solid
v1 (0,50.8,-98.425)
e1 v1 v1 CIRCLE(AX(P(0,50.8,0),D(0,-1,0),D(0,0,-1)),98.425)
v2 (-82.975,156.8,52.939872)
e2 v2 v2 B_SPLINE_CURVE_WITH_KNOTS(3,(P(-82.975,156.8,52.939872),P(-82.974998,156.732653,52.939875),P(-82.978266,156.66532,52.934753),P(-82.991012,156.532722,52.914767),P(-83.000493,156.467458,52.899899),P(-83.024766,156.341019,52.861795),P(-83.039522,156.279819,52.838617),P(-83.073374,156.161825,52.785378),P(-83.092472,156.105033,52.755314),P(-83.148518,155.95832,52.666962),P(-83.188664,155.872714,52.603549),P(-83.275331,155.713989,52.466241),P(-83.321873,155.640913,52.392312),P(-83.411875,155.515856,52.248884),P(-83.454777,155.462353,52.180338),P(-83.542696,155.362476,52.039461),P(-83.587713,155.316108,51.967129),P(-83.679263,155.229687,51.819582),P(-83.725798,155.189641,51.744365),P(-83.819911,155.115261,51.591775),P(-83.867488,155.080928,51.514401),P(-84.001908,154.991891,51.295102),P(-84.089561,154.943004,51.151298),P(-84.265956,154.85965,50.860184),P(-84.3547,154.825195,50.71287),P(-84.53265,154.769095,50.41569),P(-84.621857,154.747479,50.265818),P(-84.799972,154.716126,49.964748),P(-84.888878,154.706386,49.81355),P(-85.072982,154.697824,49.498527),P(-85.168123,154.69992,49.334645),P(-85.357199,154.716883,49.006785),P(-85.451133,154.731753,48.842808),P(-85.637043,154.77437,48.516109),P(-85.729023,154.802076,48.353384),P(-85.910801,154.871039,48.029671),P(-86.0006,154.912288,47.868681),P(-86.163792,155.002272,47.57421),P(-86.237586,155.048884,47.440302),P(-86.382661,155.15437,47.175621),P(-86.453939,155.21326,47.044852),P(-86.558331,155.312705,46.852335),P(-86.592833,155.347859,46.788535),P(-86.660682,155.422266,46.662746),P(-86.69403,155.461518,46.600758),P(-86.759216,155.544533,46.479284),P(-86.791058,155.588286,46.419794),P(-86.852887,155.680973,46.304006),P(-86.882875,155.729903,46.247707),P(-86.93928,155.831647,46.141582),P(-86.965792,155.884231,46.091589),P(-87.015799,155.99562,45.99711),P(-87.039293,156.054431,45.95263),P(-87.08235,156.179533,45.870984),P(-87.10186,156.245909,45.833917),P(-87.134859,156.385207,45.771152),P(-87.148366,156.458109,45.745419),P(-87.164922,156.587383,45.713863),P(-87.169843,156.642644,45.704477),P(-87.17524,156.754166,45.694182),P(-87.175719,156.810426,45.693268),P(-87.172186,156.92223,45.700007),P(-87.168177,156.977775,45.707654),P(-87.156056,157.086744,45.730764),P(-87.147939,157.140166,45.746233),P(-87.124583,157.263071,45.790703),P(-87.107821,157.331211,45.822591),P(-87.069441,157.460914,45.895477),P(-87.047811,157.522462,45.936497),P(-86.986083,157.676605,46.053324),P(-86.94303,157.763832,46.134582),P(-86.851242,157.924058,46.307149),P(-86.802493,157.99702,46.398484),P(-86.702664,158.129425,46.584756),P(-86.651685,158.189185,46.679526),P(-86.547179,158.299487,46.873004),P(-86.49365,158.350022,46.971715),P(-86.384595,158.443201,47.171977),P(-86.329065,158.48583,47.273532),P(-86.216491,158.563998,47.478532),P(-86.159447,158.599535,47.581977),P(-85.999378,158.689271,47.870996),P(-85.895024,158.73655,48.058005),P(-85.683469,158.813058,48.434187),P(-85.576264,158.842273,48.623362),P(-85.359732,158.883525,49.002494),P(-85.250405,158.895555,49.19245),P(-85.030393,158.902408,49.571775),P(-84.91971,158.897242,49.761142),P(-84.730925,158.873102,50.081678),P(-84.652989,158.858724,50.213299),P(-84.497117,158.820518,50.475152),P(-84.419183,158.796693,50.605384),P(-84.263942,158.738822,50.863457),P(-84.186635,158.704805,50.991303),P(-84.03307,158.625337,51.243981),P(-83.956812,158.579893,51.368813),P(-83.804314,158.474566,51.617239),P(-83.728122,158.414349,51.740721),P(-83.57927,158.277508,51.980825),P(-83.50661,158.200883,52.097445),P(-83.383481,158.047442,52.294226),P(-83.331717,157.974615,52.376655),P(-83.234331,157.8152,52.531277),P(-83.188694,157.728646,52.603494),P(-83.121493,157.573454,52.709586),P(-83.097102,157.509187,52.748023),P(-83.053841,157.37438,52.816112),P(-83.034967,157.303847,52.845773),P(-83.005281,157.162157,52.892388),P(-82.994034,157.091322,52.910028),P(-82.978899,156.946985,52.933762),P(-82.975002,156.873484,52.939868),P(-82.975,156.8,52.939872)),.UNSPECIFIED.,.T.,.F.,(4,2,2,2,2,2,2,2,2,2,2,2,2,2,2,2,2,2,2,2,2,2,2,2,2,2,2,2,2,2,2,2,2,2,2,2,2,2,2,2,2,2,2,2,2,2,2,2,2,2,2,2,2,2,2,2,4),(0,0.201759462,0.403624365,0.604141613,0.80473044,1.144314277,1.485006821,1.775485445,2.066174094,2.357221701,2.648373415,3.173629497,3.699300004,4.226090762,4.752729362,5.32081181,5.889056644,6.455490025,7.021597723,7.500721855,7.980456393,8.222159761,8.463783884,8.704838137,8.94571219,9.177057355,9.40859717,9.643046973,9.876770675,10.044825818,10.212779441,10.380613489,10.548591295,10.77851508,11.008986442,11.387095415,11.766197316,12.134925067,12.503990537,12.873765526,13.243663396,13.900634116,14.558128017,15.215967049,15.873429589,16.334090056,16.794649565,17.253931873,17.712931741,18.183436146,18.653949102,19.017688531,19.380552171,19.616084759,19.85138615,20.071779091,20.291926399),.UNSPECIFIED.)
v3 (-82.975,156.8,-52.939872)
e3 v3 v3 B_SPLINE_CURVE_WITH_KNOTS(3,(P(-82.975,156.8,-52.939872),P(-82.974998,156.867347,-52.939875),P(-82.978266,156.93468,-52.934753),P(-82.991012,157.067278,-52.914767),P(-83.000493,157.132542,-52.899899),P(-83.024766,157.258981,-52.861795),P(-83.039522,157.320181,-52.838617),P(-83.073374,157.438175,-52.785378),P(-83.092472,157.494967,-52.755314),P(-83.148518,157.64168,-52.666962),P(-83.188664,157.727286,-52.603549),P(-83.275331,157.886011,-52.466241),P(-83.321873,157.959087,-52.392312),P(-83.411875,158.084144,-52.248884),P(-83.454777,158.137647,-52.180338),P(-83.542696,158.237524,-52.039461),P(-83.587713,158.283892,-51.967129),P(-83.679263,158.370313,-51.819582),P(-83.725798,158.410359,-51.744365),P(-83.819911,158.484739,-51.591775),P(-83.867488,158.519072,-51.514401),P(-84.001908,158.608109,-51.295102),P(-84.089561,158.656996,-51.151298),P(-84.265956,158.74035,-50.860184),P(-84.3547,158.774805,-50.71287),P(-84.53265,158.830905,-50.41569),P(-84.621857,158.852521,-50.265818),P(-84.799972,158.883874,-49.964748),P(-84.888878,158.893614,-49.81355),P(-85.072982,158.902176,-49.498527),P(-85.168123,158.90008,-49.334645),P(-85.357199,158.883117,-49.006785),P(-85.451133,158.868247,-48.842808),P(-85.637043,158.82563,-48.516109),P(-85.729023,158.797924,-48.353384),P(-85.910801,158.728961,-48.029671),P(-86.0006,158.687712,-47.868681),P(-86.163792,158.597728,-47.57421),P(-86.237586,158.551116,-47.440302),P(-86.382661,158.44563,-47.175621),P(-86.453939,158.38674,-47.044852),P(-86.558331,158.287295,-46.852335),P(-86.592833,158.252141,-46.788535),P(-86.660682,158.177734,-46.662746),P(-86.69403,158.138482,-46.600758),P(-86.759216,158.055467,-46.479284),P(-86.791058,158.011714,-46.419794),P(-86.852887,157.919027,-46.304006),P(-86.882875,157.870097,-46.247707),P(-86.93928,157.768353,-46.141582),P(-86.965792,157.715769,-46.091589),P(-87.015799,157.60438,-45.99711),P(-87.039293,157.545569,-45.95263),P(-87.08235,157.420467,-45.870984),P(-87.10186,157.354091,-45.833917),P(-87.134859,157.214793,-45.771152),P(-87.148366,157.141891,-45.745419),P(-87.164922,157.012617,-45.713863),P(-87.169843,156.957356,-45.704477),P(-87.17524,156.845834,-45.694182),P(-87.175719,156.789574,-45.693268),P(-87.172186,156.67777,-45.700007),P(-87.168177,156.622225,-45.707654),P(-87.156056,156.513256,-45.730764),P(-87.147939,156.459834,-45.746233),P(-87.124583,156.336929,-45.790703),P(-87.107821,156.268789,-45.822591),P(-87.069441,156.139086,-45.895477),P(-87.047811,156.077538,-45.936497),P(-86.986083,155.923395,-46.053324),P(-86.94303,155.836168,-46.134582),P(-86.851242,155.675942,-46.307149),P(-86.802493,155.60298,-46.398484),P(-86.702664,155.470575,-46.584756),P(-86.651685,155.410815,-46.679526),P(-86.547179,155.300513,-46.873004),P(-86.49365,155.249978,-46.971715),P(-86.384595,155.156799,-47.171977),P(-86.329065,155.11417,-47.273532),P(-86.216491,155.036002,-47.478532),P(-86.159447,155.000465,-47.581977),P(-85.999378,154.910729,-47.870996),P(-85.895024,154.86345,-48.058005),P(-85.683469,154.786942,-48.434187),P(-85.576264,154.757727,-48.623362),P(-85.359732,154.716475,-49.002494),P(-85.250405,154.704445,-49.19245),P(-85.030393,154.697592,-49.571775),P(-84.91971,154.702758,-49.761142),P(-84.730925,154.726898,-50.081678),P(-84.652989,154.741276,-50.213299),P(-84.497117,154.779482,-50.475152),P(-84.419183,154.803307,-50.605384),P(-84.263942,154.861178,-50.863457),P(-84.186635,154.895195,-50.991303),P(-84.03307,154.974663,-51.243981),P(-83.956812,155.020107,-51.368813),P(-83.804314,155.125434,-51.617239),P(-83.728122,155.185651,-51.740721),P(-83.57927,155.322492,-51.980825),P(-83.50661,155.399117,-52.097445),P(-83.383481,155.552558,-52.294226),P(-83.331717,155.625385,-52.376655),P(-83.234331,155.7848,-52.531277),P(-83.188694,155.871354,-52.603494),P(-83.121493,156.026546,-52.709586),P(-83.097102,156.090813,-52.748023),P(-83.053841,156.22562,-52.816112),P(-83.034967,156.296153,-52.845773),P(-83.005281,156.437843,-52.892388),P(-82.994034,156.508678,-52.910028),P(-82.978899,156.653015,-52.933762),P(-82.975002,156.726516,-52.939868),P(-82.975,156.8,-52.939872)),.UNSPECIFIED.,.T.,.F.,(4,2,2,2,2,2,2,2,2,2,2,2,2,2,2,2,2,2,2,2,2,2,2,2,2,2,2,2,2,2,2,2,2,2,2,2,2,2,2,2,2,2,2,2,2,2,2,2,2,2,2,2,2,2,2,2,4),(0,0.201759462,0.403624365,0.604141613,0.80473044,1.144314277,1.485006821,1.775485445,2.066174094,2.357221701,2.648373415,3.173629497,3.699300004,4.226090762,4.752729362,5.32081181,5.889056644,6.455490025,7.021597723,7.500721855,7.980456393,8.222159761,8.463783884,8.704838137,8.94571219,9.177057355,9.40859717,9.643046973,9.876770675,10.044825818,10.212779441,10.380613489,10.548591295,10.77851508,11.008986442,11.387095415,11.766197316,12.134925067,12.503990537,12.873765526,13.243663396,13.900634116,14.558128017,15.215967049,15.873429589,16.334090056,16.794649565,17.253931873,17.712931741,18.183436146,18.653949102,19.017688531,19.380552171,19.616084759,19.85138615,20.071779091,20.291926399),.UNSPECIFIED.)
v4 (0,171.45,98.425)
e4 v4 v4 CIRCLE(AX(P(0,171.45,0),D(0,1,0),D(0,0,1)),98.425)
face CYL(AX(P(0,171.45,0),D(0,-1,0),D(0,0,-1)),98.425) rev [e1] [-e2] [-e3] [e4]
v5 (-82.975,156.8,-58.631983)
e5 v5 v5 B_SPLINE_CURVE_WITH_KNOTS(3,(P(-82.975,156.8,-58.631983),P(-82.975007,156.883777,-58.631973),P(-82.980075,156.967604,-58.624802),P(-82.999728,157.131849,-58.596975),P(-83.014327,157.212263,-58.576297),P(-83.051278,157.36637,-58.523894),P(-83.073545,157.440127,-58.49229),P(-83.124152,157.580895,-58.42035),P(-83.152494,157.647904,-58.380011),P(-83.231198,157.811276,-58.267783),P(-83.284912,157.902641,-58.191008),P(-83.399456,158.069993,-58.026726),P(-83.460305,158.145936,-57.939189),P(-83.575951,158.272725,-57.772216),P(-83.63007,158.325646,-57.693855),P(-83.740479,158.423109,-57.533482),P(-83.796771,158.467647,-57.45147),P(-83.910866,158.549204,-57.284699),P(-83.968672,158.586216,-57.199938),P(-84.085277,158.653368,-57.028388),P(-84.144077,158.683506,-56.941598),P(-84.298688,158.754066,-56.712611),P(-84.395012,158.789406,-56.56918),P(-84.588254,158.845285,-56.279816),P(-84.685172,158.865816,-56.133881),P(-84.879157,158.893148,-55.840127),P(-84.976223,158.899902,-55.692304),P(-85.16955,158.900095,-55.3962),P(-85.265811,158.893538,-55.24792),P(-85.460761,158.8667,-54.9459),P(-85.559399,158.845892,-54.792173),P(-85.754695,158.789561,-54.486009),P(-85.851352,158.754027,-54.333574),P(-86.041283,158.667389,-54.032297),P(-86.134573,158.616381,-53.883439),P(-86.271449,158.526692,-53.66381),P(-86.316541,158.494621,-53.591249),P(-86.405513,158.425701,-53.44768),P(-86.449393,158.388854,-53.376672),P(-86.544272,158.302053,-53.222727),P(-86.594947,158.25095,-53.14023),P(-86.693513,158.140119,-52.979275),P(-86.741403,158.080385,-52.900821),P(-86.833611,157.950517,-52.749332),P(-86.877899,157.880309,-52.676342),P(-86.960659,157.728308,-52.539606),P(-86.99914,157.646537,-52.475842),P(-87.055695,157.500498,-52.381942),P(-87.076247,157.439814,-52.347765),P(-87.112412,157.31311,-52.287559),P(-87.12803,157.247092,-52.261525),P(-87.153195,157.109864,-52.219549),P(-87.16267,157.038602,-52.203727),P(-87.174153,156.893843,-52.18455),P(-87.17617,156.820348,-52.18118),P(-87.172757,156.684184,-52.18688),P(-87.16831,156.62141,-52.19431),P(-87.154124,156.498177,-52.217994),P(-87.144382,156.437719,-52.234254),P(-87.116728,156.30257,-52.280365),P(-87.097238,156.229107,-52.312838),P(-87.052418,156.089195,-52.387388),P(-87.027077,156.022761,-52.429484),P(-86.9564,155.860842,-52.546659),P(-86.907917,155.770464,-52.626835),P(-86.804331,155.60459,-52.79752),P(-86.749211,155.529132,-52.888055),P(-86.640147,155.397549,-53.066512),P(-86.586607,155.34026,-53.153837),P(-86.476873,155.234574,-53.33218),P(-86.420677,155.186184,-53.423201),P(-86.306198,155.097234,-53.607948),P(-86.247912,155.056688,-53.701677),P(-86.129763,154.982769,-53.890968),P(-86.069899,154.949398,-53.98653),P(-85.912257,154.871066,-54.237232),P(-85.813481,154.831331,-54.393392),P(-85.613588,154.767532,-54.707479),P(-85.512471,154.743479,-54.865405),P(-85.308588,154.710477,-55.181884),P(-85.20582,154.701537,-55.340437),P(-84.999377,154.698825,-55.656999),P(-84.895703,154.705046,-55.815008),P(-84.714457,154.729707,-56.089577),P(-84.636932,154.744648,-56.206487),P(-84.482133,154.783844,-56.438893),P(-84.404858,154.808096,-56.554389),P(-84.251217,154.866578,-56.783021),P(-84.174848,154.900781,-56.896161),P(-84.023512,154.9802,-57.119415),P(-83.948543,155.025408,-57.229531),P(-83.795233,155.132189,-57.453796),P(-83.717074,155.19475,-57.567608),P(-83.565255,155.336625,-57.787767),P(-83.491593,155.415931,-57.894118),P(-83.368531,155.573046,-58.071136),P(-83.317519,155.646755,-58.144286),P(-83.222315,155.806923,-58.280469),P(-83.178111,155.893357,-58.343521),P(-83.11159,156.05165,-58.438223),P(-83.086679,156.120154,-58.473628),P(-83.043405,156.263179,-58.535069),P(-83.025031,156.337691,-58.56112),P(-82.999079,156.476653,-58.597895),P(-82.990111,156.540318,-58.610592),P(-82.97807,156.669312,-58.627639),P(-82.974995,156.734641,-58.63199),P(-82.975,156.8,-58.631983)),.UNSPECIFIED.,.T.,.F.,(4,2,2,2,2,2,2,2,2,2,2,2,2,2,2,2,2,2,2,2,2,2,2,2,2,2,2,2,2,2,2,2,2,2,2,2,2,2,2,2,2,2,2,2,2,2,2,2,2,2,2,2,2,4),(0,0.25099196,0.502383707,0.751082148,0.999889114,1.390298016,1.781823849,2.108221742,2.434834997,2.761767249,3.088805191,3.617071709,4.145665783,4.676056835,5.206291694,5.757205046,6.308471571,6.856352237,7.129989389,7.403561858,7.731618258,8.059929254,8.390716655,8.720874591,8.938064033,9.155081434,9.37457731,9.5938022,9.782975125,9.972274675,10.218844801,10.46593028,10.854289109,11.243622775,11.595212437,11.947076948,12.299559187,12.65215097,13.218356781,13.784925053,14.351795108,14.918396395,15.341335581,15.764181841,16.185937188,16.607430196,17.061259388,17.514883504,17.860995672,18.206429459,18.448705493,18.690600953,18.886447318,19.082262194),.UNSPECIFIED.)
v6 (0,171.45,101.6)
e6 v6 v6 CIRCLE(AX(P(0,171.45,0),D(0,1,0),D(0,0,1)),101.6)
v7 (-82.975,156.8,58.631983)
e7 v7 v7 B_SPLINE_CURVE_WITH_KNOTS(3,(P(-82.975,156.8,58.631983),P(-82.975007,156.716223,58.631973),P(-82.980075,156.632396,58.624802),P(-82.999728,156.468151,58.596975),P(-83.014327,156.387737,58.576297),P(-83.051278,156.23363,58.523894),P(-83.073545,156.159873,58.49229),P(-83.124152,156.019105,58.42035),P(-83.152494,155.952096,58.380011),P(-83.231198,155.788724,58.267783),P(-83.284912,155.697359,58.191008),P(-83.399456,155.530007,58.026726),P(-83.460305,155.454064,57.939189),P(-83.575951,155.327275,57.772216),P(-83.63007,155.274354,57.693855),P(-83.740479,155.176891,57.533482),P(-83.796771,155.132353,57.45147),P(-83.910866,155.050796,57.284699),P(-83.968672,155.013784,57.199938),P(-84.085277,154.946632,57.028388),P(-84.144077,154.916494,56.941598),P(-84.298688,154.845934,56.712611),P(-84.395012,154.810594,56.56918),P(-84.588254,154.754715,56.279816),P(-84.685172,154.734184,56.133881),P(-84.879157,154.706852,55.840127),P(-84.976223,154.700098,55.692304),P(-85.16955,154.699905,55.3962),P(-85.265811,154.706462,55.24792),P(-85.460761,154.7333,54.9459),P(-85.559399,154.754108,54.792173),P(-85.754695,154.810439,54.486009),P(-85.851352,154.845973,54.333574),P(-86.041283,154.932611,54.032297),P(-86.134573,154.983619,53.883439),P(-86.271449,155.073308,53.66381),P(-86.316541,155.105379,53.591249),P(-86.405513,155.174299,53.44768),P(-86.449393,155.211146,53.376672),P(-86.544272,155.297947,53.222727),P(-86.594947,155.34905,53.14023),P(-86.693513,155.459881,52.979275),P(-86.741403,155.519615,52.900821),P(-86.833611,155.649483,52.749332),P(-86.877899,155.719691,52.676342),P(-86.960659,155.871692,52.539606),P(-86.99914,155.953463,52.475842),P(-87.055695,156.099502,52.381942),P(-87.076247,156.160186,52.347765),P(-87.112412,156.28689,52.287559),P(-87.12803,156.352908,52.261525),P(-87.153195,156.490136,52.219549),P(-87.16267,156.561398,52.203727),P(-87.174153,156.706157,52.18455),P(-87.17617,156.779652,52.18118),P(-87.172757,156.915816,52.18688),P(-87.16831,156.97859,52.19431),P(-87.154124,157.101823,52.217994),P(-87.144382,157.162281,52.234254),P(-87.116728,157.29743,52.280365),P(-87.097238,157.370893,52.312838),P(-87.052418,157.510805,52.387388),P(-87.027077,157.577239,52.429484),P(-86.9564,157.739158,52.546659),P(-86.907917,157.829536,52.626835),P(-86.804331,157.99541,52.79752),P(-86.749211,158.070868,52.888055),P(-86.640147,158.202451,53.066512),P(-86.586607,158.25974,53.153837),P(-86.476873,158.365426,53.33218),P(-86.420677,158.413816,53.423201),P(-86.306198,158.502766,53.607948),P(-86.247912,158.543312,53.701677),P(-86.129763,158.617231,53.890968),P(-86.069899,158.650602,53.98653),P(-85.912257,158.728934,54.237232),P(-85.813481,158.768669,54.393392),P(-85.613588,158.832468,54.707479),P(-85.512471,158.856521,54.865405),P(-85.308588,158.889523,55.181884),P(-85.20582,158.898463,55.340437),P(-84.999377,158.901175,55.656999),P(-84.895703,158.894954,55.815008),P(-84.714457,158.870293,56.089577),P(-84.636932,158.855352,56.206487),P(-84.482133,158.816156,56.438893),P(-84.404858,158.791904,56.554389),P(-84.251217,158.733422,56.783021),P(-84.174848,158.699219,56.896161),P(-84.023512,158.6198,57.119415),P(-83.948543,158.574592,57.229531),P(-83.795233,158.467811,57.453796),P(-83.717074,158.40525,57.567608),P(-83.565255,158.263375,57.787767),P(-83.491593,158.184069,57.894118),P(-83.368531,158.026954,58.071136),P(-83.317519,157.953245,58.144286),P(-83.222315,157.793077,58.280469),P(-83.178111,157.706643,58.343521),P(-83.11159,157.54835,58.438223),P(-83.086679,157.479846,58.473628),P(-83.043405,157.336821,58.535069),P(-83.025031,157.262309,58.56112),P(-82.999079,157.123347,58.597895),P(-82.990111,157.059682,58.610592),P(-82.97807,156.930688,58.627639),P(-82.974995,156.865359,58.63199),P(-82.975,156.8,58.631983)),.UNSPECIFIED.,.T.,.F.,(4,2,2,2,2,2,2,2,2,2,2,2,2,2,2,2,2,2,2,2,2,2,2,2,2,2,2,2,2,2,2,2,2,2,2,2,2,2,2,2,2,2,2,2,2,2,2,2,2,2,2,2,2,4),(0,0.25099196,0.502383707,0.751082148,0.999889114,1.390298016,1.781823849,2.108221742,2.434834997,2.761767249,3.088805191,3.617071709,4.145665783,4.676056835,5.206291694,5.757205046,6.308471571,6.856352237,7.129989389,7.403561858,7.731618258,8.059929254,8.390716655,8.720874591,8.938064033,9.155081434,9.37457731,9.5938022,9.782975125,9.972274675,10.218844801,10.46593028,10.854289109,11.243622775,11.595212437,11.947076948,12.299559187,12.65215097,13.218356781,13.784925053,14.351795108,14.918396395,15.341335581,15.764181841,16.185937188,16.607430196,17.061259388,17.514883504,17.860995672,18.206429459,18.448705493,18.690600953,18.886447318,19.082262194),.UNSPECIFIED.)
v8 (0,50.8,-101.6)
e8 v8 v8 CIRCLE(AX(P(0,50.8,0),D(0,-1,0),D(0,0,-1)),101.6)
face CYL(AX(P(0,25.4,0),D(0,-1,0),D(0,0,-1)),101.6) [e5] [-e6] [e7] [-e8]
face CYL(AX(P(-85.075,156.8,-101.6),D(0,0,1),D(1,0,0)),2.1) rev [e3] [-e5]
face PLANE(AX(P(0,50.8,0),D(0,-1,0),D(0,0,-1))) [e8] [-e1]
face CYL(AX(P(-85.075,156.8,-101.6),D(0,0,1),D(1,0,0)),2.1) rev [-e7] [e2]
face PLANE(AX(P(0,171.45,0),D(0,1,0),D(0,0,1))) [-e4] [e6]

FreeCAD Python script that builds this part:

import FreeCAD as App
import Part
import Sketcher

V = App.Vector
Q = App.Units.Quantity

doc = App.newDocument("Part")
body = doc.addObject("PartDesign::Body", "Body")

sketch1 = body.newObject("Sketcher::SketchObject", "Sketch")
sketch1.AttachmentSupport = (doc.getObject("XZ_Plane"), [""])
sketch1.MapMode = "FlatFace"
sketch1.addGeometry([
    Part.Circle(V(0, 0, 0), V(0, 0, 1), 101.6),
    Part.Circle(V(0, 0, 0), V(0, 0, 1), 95.25),
], False)
sketch1.addConstraint([
    Sketcher.Constraint("Coincident", 0, 3, -1, 1),
    Sketcher.Constraint("Coincident", 1, 3, -1, 1),
    Sketcher.Constraint("Diameter", 0, Q("8 in")),
    Sketcher.Constraint("Diameter", 1, Q("7.5 in")),
])
pad1 = body.newObject("PartDesign::Pad", "Pad")
pad1.Profile = sketch1
pad1.Length = Q("1 in")
pad1.Reversed = True

sketch2 = body.newObject("Sketcher::SketchObject", "Sketch001")
sketch2.AttachmentSupport = (doc.getObject("XY_Plane"), [""])
sketch2.MapMode = "FlatFace"
sketch2.addGeometry(Part.Circle(V(0, 12.7, 0), V(0, 0, 1), 3.175), False)
sketch2.addConstraint([
    Sketcher.Constraint("PointOnObject", 0, 3, -2),
    Sketcher.Constraint("Diameter", 0, Q("0.25 in")),
    Sketcher.Constraint("DistanceY", -1, 1, 0, 3, Q("0.5 in")),
])
pocket1 = body.newObject("PartDesign::Pocket", "Pocket")
pocket1.Profile = sketch2
pocket1.Type = "ThroughAll"
pocket1.Midplane = True

sketch3 = body.newObject("Sketcher::SketchObject", "Sketch002")
sketch3.AttachmentSupport = (doc.getObject("XZ_Plane"), [""])
sketch3.MapMode = "FlatFace"
sketch3.AttachmentOffset = App.Placement(V(0, 0, -1 * 25.4), App.Rotation())
sketch3.addGeometry([
    Part.Circle(V(0, 0, 0), V(0, 0, 1), 101.6),
    Part.Circle(V(0, 0, 0), V(0, 0, 1), 98.425),
], False)
sketch3.addConstraint([
    Sketcher.Constraint("Coincident", 0, 3, -1, 1),
    Sketcher.Constraint("Coincident", 1, 3, -1, 1),
    Sketcher.Constraint("Diameter", 0, Q("8 in")),
    Sketcher.Constraint("Diameter", 1, Q("7.75 in")),
])
pad2 = body.newObject("PartDesign::Pad", "Pad001")
pad2.Profile = sketch3
pad2.Length = Q("5.75 in")
pad2.Reversed = True

sketch4 = body.newObject("Sketcher::SketchObject", "Sketch003")
sketch4.AttachmentSupport = (doc.getObject("XY_Plane"), [""])
sketch4.MapMode = "FlatFace"
sketch4.AttachmentOffset = App.Placement(V(0, 0, 4 * 25.4), App.Rotation())
sketch4.addGeometry(Part.Circle(V(-85.075, 156.8, 0), V(0, 0, 1), 2.1), False)
sketch4.addConstraint([
    Sketcher.Constraint("Diameter", 0, 4.2),
    Sketcher.Constraint("DistanceX", 0, 3, -1, 1, 85.075),
    Sketcher.Constraint("DistanceY", -1, 1, 0, 3, 156.8),
])
pocket2 = body.newObject("PartDesign::Pocket", "Pocket001")
pocket2.Profile = sketch4
pocket2.Type = "ThroughAll"

sketch5 = body.newObject("Sketcher::SketchObject", "Sketch004")
sketch5.AttachmentSupport = (doc.getObject("XZ_Plane"), [""])
sketch5.MapMode = "FlatFace"
sketch5.addGeometry(Part.Circle(V(0, 0, 0), V(0, 0, 1), 101.6), False)
sketch5.addConstraint([
    Sketcher.Constraint("Coincident", 0, 3, -1, 1),
    Sketcher.Constraint("Diameter", 0, Q("8 in")),
])
pocket3 = body.newObject("PartDesign::Pocket", "Pocket002")
pocket3.Profile = sketch5
pocket3.Length = Q("2 in")

doc.recompute()
